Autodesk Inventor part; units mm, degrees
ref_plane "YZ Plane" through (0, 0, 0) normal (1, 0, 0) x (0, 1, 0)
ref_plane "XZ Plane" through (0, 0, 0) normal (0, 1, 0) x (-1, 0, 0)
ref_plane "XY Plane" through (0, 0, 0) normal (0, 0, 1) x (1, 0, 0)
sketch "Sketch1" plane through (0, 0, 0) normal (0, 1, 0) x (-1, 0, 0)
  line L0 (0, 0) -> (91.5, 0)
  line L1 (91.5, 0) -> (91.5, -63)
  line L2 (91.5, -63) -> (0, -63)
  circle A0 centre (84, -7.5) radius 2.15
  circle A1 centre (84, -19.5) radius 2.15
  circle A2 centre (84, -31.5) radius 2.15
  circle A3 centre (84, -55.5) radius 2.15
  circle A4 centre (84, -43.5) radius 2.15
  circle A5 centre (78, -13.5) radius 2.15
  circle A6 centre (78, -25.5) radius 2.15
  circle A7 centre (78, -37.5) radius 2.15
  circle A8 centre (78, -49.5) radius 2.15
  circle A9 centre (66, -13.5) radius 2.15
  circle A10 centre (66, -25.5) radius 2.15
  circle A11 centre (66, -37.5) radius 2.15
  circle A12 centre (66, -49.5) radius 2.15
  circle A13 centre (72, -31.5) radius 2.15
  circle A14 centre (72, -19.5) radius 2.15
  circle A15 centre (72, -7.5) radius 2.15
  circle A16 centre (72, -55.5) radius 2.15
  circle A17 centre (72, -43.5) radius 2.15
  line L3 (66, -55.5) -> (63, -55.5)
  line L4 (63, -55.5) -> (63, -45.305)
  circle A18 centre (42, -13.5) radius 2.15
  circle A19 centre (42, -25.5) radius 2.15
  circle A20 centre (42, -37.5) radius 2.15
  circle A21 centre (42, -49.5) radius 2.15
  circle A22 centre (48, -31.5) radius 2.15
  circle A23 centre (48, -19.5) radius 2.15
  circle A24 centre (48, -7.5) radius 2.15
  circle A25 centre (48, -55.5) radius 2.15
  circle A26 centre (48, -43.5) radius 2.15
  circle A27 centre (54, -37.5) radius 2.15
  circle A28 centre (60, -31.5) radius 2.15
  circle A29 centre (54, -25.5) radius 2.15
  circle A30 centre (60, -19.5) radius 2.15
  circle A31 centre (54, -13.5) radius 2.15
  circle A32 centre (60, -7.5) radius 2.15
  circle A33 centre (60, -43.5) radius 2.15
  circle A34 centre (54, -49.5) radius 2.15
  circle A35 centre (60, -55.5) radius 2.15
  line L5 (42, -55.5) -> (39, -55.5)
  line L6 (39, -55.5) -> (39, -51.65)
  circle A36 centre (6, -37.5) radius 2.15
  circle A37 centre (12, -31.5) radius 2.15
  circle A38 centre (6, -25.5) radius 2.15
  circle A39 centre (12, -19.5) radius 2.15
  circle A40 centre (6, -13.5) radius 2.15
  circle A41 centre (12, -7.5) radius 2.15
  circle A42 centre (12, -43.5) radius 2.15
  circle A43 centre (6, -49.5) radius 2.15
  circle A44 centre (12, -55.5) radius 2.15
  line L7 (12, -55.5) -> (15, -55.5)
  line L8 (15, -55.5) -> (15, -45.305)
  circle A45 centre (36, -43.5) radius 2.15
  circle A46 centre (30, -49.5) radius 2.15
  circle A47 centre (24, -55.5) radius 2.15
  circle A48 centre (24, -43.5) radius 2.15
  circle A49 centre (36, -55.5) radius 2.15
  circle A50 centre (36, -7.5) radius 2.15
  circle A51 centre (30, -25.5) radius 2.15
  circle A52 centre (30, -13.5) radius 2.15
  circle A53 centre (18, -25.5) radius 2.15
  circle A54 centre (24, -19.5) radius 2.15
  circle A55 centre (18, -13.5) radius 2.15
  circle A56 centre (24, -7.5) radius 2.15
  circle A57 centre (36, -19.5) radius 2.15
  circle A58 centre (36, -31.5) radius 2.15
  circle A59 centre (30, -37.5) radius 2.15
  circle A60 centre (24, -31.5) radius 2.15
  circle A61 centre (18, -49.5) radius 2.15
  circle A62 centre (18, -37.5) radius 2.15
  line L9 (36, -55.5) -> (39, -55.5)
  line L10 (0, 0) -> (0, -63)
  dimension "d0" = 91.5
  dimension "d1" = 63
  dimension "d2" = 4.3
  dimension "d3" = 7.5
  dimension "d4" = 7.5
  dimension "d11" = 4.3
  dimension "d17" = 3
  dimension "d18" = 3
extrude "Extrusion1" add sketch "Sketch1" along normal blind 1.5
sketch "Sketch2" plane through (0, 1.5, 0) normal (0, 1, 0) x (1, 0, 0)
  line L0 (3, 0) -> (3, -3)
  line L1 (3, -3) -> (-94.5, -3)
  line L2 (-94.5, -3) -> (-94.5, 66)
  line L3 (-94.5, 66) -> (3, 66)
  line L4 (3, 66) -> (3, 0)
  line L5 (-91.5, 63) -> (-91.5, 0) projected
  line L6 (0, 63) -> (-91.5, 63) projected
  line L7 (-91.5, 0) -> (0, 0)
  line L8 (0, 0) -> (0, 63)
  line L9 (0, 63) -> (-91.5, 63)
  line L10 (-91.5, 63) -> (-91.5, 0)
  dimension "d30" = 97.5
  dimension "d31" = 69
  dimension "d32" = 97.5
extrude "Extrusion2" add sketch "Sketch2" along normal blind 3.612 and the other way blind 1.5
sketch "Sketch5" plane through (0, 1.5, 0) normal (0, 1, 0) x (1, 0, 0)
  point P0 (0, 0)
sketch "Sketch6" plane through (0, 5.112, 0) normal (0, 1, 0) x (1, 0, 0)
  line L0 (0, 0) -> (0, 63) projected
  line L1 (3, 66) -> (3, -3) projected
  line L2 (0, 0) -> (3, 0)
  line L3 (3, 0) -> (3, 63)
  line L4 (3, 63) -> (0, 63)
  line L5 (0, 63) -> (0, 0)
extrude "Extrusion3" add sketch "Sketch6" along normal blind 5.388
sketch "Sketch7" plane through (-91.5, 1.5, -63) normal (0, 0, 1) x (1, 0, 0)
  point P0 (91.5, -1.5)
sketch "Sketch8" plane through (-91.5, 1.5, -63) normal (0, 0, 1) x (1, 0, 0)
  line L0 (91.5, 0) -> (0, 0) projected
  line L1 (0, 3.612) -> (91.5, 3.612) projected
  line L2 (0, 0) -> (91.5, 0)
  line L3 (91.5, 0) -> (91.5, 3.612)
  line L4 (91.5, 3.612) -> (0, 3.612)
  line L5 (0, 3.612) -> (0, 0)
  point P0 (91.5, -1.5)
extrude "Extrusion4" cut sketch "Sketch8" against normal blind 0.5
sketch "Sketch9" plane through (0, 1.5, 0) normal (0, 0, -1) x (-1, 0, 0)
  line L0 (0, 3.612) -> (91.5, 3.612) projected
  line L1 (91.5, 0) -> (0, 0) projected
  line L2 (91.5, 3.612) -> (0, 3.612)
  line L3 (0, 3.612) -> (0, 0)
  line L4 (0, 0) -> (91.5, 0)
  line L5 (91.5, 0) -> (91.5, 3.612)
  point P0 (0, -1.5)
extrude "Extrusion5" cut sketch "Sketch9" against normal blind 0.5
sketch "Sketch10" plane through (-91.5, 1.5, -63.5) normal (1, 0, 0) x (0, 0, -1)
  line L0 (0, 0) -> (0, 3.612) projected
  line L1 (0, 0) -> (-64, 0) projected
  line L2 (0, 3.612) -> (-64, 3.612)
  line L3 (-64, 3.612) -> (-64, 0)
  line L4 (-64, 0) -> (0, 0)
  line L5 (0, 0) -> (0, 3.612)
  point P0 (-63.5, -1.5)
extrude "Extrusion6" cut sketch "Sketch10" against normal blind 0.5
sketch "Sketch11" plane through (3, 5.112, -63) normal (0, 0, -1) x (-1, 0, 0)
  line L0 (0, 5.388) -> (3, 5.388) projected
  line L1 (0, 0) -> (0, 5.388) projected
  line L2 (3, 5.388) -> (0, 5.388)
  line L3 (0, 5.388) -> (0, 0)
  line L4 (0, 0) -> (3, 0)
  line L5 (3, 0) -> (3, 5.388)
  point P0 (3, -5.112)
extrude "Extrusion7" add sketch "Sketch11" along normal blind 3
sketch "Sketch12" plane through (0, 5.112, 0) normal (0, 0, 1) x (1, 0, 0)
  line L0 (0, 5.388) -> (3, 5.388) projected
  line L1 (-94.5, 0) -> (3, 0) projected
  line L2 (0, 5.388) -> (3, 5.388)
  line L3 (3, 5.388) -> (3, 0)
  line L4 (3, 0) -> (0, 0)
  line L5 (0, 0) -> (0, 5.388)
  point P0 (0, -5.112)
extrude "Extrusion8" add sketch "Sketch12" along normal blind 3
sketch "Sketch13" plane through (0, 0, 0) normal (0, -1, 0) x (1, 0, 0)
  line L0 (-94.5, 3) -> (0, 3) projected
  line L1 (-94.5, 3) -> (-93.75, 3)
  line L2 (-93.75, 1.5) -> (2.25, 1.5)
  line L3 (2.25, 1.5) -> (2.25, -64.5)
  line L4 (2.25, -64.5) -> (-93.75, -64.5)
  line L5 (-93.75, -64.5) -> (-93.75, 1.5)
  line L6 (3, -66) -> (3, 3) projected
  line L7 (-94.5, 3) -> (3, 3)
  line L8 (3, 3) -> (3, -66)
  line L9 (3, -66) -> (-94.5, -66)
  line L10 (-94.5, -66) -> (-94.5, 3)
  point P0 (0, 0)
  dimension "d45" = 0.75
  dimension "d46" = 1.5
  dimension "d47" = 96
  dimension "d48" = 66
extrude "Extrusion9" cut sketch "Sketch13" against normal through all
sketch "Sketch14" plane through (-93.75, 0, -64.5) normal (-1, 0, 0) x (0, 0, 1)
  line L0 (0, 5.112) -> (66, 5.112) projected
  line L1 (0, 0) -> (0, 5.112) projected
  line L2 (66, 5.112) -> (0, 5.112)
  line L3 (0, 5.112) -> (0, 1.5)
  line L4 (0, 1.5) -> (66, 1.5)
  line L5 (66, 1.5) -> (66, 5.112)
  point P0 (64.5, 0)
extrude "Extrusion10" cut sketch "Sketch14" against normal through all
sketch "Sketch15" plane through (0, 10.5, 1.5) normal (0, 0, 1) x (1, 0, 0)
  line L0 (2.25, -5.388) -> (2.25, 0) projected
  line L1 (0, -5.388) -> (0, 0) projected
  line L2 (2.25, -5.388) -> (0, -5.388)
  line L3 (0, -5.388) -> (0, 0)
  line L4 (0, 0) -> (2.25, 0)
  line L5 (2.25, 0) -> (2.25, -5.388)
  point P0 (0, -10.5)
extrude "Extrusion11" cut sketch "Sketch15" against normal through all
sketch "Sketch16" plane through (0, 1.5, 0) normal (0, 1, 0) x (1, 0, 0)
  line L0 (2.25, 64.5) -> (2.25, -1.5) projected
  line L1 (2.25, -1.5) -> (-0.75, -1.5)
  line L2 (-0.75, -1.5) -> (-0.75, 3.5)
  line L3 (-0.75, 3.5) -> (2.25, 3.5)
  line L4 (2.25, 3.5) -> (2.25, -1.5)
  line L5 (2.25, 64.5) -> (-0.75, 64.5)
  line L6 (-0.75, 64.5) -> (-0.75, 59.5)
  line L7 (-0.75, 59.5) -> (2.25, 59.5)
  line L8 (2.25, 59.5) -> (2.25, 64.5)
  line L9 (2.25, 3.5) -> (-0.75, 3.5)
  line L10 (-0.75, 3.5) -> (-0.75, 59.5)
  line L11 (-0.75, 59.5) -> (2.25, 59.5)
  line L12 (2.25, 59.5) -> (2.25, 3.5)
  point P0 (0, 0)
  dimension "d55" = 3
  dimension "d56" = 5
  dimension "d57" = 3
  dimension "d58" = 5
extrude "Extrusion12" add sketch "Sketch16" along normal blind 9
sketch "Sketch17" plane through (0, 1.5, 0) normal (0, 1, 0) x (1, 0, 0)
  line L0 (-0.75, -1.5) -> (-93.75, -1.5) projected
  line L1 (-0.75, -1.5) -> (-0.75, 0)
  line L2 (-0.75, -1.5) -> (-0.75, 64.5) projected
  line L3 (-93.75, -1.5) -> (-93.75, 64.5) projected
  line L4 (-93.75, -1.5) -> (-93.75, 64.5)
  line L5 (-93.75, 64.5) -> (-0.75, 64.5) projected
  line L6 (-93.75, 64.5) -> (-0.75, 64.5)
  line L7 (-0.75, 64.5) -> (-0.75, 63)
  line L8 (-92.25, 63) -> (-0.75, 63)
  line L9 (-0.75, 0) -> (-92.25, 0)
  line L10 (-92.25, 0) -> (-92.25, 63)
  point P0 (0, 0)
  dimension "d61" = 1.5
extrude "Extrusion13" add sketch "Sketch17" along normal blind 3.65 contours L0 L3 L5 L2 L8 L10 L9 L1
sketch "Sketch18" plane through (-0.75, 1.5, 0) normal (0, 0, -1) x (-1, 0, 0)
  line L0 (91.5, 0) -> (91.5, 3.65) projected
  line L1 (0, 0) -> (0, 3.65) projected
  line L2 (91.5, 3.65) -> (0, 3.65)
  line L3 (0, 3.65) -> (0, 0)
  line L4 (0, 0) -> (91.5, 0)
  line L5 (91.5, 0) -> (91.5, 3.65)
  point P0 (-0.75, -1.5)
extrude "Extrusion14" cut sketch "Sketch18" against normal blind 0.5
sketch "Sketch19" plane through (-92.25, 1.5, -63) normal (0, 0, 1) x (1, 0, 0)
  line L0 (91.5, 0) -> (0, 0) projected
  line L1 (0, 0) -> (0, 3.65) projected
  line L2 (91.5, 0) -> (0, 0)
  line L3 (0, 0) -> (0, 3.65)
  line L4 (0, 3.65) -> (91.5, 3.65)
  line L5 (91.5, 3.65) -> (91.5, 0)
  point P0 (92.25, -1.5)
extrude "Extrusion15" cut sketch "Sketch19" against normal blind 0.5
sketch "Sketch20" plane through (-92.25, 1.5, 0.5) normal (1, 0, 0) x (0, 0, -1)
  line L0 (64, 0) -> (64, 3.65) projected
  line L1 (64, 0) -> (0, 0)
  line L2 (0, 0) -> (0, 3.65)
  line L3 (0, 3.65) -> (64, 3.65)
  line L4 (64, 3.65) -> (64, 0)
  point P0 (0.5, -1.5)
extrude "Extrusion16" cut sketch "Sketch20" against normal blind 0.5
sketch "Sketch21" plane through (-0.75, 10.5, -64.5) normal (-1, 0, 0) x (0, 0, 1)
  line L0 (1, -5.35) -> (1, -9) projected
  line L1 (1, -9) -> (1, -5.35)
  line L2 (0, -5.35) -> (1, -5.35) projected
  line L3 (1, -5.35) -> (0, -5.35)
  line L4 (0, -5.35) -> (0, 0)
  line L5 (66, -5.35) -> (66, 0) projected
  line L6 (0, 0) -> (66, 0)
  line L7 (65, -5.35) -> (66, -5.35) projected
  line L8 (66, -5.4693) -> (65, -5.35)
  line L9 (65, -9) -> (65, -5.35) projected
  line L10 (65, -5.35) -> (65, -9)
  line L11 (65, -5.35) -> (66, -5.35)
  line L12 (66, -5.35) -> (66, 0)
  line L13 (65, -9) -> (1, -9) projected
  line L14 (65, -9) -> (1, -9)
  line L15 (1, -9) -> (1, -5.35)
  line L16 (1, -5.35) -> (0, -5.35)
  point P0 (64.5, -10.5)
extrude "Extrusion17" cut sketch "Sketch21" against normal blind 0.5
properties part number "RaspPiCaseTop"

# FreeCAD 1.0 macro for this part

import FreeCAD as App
import Part
import Sketcher
from FreeCAD import Vector
Q = App.Units.Quantity


def add_polygon(sketch, points):
    """Adds a closed chain of lines whose ends are joined by coincident constraints."""
    first, n = sketch.GeometryCount, len(points)
    for a, b in zip(points, points[1:] + points[:1]):
        sketch.addGeometry(Part.LineSegment(App.Vector(*a, 0), App.Vector(*b, 0)), False)
    for i in range(n):
        sketch.addConstraint(Sketcher.Constraint("Coincident", first + i, 2, first + (i + 1) % n, 1))

doc = App.newDocument("Part")
body = doc.addObject("PartDesign::Body", "Body")
body.AllowCompound = True

sketch1 = body.newObject("Sketcher::SketchObject", "Sketch")
sketch1.AttachmentSupport = (doc.getObject("XZ_Plane"), [""])
sketch1.MapMode = "FlatFace"
add_polygon(sketch1, [(-91.5, 0), (0, 0), (0, -63), (-91.5, -63)])
sketch1.addGeometry(Part.Circle(Vector(-12, -55.5, 0), Vector(0, 0, 1), 2.1), False)
sketch1.addGeometry(Part.Circle(Vector(-6, -49.5, 0), Vector(0, 0, 1), 2.1), False)
sketch1.addGeometry(Part.Circle(Vector(-18, -49.5, 0), Vector(0, 0, 1), 2.1), False)
sketch1.addGeometry(Part.Circle(Vector(-24, -55.5, 0), Vector(0, 0, 1), 2.1), False)
sketch1.addGeometry(Part.Circle(Vector(-36, -55.5, 0), Vector(0, 0, 1), 2.1), False)
sketch1.addGeometry(Part.Circle(Vector(-30, -49.5, 0), Vector(0, 0, 1), 2.1), False)
sketch1.addGeometry(Part.Circle(Vector(-42, -49.5, 0), Vector(0, 0, 1), 2.1), False)
sketch1.addGeometry(Part.Circle(Vector(-12, -43.5, 0), Vector(0, 0, 1), 2.1), False)
sketch1.addGeometry(Part.Circle(Vector(-6, -37.5, 0), Vector(0, 0, 1), 2.1), False)
sketch1.addGeometry(Part.Circle(Vector(-18, -37.5, 0), Vector(0, 0, 1), 2.1), False)
sketch1.addGeometry(Part.Circle(Vector(-24, -43.5, 0), Vector(0, 0, 1), 2.1), False)
sketch1.addGeometry(Part.Circle(Vector(-36, -43.5, 0), Vector(0, 0, 1), 2.1), False)
sketch1.addGeometry(Part.Circle(Vector(-30, -37.5, 0), Vector(0, 0, 1), 2.1), False)
sketch1.addGeometry(Part.Circle(Vector(-42, -37.5, 0), Vector(0, 0, 1), 2.1), False)
sketch1.addGeometry(Part.Circle(Vector(-48, -55.5, 0), Vector(0, 0, 1), 2.1), False)
sketch1.addGeometry(Part.Circle(Vector(-60, -55.5, 0), Vector(0, 0, 1), 2.1), False)
sketch1.addGeometry(Part.Circle(Vector(-54, -49.5, 0), Vector(0, 0, 1), 2.1), False)
sketch1.addGeometry(Part.Circle(Vector(-66, -49.5, 0), Vector(0, 0, 1), 2.1), False)
sketch1.addGeometry(Part.Circle(Vector(-72, -55.5, 0), Vector(0, 0, 1), 2.1), False)
sketch1.addGeometry(Part.Circle(Vector(-84, -55.5, 0), Vector(0, 0, 1), 2.1), False)
sketch1.addGeometry(Part.Circle(Vector(-78, -49.5, 0), Vector(0, 0, 1), 2.1), False)
sketch1.addGeometry(Part.Circle(Vector(-48, -43.5, 0), Vector(0, 0, 1), 2.1), False)
sketch1.addGeometry(Part.Circle(Vector(-60, -43.5, 0), Vector(0, 0, 1), 2.1), False)
sketch1.addGeometry(Part.Circle(Vector(-54, -37.5, 0), Vector(0, 0, 1), 2.1), False)
sketch1.addGeometry(Part.Circle(Vector(-66, -37.5, 0), Vector(0, 0, 1), 2.1), False)
sketch1.addGeometry(Part.Circle(Vector(-72, -43.5, 0), Vector(0, 0, 1), 2.1), False)
sketch1.addGeometry(Part.Circle(Vector(-84, -43.5, 0), Vector(0, 0, 1), 2.1), False)
sketch1.addGeometry(Part.Circle(Vector(-78, -37.5, 0), Vector(0, 0, 1), 2.1), False)
sketch1.addGeometry(Part.Circle(Vector(-6, -25.5, 0), Vector(0, 0, 1), 2.1), False)
sketch1.addGeometry(Part.Circle(Vector(-12, -31.5, 0), Vector(0, 0, 1), 2.1), False)
sketch1.addGeometry(Part.Circle(Vector(-18, -25.5, 0), Vector(0, 0, 1), 2.1), False)
sketch1.addGeometry(Part.Circle(Vector(-12, -19.5, 0), Vector(0, 0, 1), 2.1), False)
sketch1.addGeometry(Part.Circle(Vector(-24, -31.5, 0), Vector(0, 0, 1), 2.1), False)
sketch1.addGeometry(Part.Circle(Vector(-30, -25.5, 0), Vector(0, 0, 1), 2.1), False)
sketch1.addGeometry(Part.Circle(Vector(-36, -31.5, 0), Vector(0, 0, 1), 2.1), False)
sketch1.addGeometry(Part.Circle(Vector(-42, -25.5, 0), Vector(0, 0, 1), 2.1), False)
sketch1.addGeometry(Part.Circle(Vector(-24, -19.5, 0), Vector(0, 0, 1), 2.1), False)
sketch1.addGeometry(Part.Circle(Vector(-36, -19.5, 0), Vector(0, 0, 1), 2.1), False)
sketch1.addGeometry(Part.Circle(Vector(-6, -13.5, 0), Vector(0, 0, 1), 2.1), False)
sketch1.addGeometry(Part.Circle(Vector(-18, -13.5, 0), Vector(0, 0, 1), 2.1), False)
sketch1.addGeometry(Part.Circle(Vector(-12, -7.5, 0), Vector(0, 0, 1), 2.1), False)
sketch1.addGeometry(Part.Circle(Vector(-30, -13.5, 0), Vector(0, 0, 1), 2.1), False)
sketch1.addGeometry(Part.Circle(Vector(-42, -13.5, 0), Vector(0, 0, 1), 2.1), False)
sketch1.addGeometry(Part.Circle(Vector(-24, -7.5, 0), Vector(0, 0, 1), 2.1), False)
sketch1.addGeometry(Part.Circle(Vector(-36, -7.5, 0), Vector(0, 0, 1), 2.1), False)
sketch1.addGeometry(Part.Circle(Vector(-48, -31.5, 0), Vector(0, 0, 1), 2.1), False)
sketch1.addGeometry(Part.Circle(Vector(-54, -25.5, 0), Vector(0, 0, 1), 2.1), False)
sketch1.addGeometry(Part.Circle(Vector(-60, -31.5, 0), Vector(0, 0, 1), 2.1), False)
sketch1.addGeometry(Part.Circle(Vector(-66, -25.5, 0), Vector(0, 0, 1), 2.1), False)
sketch1.addGeometry(Part.Circle(Vector(-48, -19.5, 0), Vector(0, 0, 1), 2.1), False)
sketch1.addGeometry(Part.Circle(Vector(-60, -19.5, 0), Vector(0, 0, 1), 2.1), False)
sketch1.addGeometry(Part.Circle(Vector(-72, -31.5, 0), Vector(0, 0, 1), 2.1), False)
sketch1.addGeometry(Part.Circle(Vector(-78, -25.5, 0), Vector(0, 0, 1), 2.1), False)
sketch1.addGeometry(Part.Circle(Vector(-84, -31.5, 0), Vector(0, 0, 1), 2.1), False)
sketch1.addGeometry(Part.Circle(Vector(-72, -19.5, 0), Vector(0, 0, 1), 2.1), False)
sketch1.addGeometry(Part.Circle(Vector(-84, -19.5, 0), Vector(0, 0, 1), 2.1), False)
sketch1.addGeometry(Part.Circle(Vector(-54, -13.5, 0), Vector(0, 0, 1), 2.1), False)
sketch1.addGeometry(Part.Circle(Vector(-66, -13.5, 0), Vector(0, 0, 1), 2.1), False)
sketch1.addGeometry(Part.Circle(Vector(-48, -7.5, 0), Vector(0, 0, 1), 2.1), False)
sketch1.addGeometry(Part.Circle(Vector(-60, -7.5, 0), Vector(0, 0, 1), 2.1), False)
sketch1.addGeometry(Part.Circle(Vector(-78, -13.5, 0), Vector(0, 0, 1), 2.1), False)
sketch1.addGeometry(Part.Circle(Vector(-72, -7.5, 0), Vector(0, 0, 1), 2.1), False)
sketch1.addGeometry(Part.Circle(Vector(-84, -7.5, 0), Vector(0, 0, 1), 2.1), False)
sketch1.addConstraint([
    Sketcher.Constraint("Horizontal", 0),
    Sketcher.Constraint("Vertical", 1),
    Sketcher.Constraint("Horizontal", 2),
    Sketcher.Constraint("Vertical", 3),
    Sketcher.Constraint("Coincident", 0, 2, -1, 1),
    Sketcher.Constraint("Equal", 4, 5),
    Sketcher.Constraint("Equal", 5, 6),
    Sketcher.Constraint("Equal", 6, 7),
    Sketcher.Constraint("Equal", 7, 8),
    Sketcher.Constraint("Equal", 8, 9),
    Sketcher.Constraint("Equal", 9, 10),
    Sketcher.Constraint("Equal", 10, 11),
    Sketcher.Constraint("Equal", 11, 12),
    Sketcher.Constraint("Equal", 12, 13),
    Sketcher.Constraint("Equal", 13, 14),
    Sketcher.Constraint("Equal", 14, 15),
    Sketcher.Constraint("Equal", 15, 16),
    Sketcher.Constraint("Equal", 16, 17),
    Sketcher.Constraint("Equal", 17, 18),
    Sketcher.Constraint("Equal", 18, 19),
    Sketcher.Constraint("Equal", 19, 20),
    Sketcher.Constraint("Equal", 20, 21),
    Sketcher.Constraint("Equal", 21, 22),
    Sketcher.Constraint("Equal", 22, 23),
    Sketcher.Constraint("Equal", 23, 24),
    Sketcher.Constraint("Equal", 24, 25),
    Sketcher.Constraint("Equal", 25, 26),
    Sketcher.Constraint("Equal", 26, 27),
    Sketcher.Constraint("Equal", 27, 28),
    Sketcher.Constraint("Equal", 28, 29),
    Sketcher.Constraint("Equal", 29, 30),
    Sketcher.Constraint("Equal", 30, 31),
    Sketcher.Constraint("Equal", 31, 32),
    Sketcher.Constraint("Equal", 32, 33),
    Sketcher.Constraint("Equal", 33, 34),
    Sketcher.Constraint("Equal", 34, 35),
    Sketcher.Constraint("Equal", 35, 36),
    Sketcher.Constraint("Equal", 36, 37),
    Sketcher.Constraint("Equal", 37, 38),
    Sketcher.Constraint("Equal", 38, 39),
    Sketcher.Constraint("Equal", 39, 40),
    Sketcher.Constraint("Equal", 40, 41),
    Sketcher.Constraint("Equal", 41, 42),
    Sketcher.Constraint("Equal", 42, 43),
    Sketcher.Constraint("Equal", 43, 44),
    Sketcher.Constraint("Equal", 44, 45),
    Sketcher.Constraint("Equal", 45, 46),
    Sketcher.Constraint("Equal", 46, 47),
    Sketcher.Constraint("Equal", 47, 48),
    Sketcher.Constraint("Equal", 48, 49),
    Sketcher.Constraint("Equal", 49, 50),
    Sketcher.Constraint("Equal", 50, 51),
    Sketcher.Constraint("Equal", 51, 52),
    Sketcher.Constraint("Equal", 52, 53),
    Sketcher.Constraint("Equal", 53, 54),
    Sketcher.Constraint("Equal", 54, 55),
    Sketcher.Constraint("Equal", 55, 56),
    Sketcher.Constraint("Equal", 56, 57),
    Sketcher.Constraint("Equal", 57, 58),
    Sketcher.Constraint("Equal", 58, 59),
    Sketcher.Constraint("Equal", 59, 60),
    Sketcher.Constraint("Equal", 60, 61),
    Sketcher.Constraint("Equal", 61, 62),
    Sketcher.Constraint("Equal", 62, 63),
    Sketcher.Constraint("Equal", 63, 64),
    Sketcher.Constraint("Equal", 64, 65),
    Sketcher.Constraint("Equal", 65, 66),
    Sketcher.Constraint("Horizontal", 5, 3, 6, 3),
    Sketcher.Constraint("Horizontal", 4, 3, 7, 3),
    Sketcher.Constraint("Horizontal", 7, 3, 8, 3),
    Sketcher.Constraint("Horizontal", 6, 3, 9, 3),
    Sketcher.Constraint("Horizontal", 9, 3, 10, 3),
    Sketcher.Constraint("Horizontal", 12, 3, 13, 3),
    Sketcher.Constraint("Horizontal", 11, 3, 14, 3),
    Sketcher.Constraint("Horizontal", 14, 3, 15, 3),
    Sketcher.Constraint("Horizontal", 13, 3, 16, 3),
    Sketcher.Constraint("Horizontal", 16, 3, 17, 3),
    Sketcher.Constraint("Horizontal", 8, 3, 18, 3),
    Sketcher.Constraint("Horizontal", 18, 3, 19, 3),
    Sketcher.Constraint("Horizontal", 10, 3, 20, 3),
    Sketcher.Constraint("Horizontal", 20, 3, 21, 3),
    Sketcher.Constraint("Horizontal", 19, 3, 22, 3),
    Sketcher.Constraint("Horizontal", 22, 3, 23, 3),
    Sketcher.Constraint("Horizontal", 21, 3, 24, 3),
    Sketcher.Constraint("Horizontal", 15, 3, 25, 3),
    Sketcher.Constraint("Horizontal", 25, 3, 26, 3),
    Sketcher.Constraint("Horizontal", 17, 3, 27, 3),
    Sketcher.Constraint("Horizontal", 27, 3, 28, 3),
    Sketcher.Constraint("Horizontal", 26, 3, 29, 3),
    Sketcher.Constraint("Horizontal", 29, 3, 30, 3),
    Sketcher.Constraint("Horizontal", 28, 3, 31, 3),
    Sketcher.Constraint("Horizontal", 32, 3, 34, 3),
    Sketcher.Constraint("Horizontal", 33, 3, 36, 3),
    Sketcher.Constraint("Horizontal", 34, 3, 37, 3),
    Sketcher.Constraint("Horizontal", 36, 3, 38, 3),
    Sketcher.Constraint("Horizontal", 37, 3, 39, 3),
    Sketcher.Constraint("Horizontal", 35, 3, 40, 3),
    Sketcher.Constraint("Horizontal", 40, 3, 41, 3),
    Sketcher.Constraint("Horizontal", 42, 3, 43, 3),
    Sketcher.Constraint("Horizontal", 43, 3, 45, 3),
    Sketcher.Constraint("Horizontal", 45, 3, 46, 3),
    Sketcher.Constraint("Horizontal", 44, 3, 47, 3),
    Sketcher.Constraint("Horizontal", 47, 3, 48, 3),
    Sketcher.Constraint("Horizontal", 38, 3, 49, 3),
    Sketcher.Constraint("Horizontal", 39, 3, 50, 3),
    Sketcher.Constraint("Horizontal", 49, 3, 51, 3),
    Sketcher.Constraint("Horizontal", 50, 3, 52, 3),
    Sketcher.Constraint("Horizontal", 41, 3, 53, 3),
    Sketcher.Constraint("Horizontal", 53, 3, 54, 3),
    Sketcher.Constraint("Horizontal", 51, 3, 55, 3),
    Sketcher.Constraint("Horizontal", 52, 3, 56, 3),
    Sketcher.Constraint("Horizontal", 55, 3, 57, 3),
    Sketcher.Constraint("Horizontal", 54, 3, 58, 3),
    Sketcher.Constraint("Horizontal", 58, 3, 59, 3),
    Sketcher.Constraint("Horizontal", 46, 3, 60, 3),
    Sketcher.Constraint("Horizontal", 60, 3, 61, 3),
    Sketcher.Constraint("Horizontal", 48, 3, 62, 3),
    Sketcher.Constraint("Horizontal", 62, 3, 63, 3),
    Sketcher.Constraint("Horizontal", 61, 3, 64, 3),
    Sketcher.Constraint("Horizontal", 63, 3, 65, 3),
    Sketcher.Constraint("Horizontal", 65, 3, 66, 3),
    Sketcher.Constraint("Vertical", 4, 3, 11, 3),
    Sketcher.Constraint("Vertical", 5, 3, 12, 3),
    Sketcher.Constraint("Vertical", 6, 3, 13, 3),
    Sketcher.Constraint("Vertical", 7, 3, 14, 3),
    Sketcher.Constraint("Vertical", 8, 3, 15, 3),
    Sketcher.Constraint("Vertical", 9, 3, 16, 3),
    Sketcher.Constraint("Vertical", 10, 3, 17, 3),
    Sketcher.Constraint("Vertical", 18, 3, 25, 3),
    Sketcher.Constraint("Vertical", 19, 3, 26, 3),
    Sketcher.Constraint("Vertical", 20, 3, 27, 3),
    Sketcher.Constraint("Vertical", 21, 3, 28, 3),
    Sketcher.Constraint("Vertical", 22, 3, 29, 3),
    Sketcher.Constraint("Vertical", 23, 3, 30, 3),
    Sketcher.Constraint("Vertical", 24, 3, 31, 3),
    Sketcher.Constraint("Vertical", 12, 3, 32, 3),
    Sketcher.Constraint("Vertical", 11, 3, 33, 3),
    Sketcher.Constraint("Vertical", 13, 3, 34, 3),
    Sketcher.Constraint("Vertical", 33, 3, 35, 3),
    Sketcher.Constraint("Vertical", 14, 3, 36, 3),
    Sketcher.Constraint("Vertical", 16, 3, 37, 3),
    Sketcher.Constraint("Vertical", 15, 3, 38, 3),
    Sketcher.Constraint("Vertical", 17, 3, 39, 3),
    Sketcher.Constraint("Vertical", 36, 3, 40, 3),
    Sketcher.Constraint("Vertical", 38, 3, 41, 3),
    Sketcher.Constraint("Vertical", 32, 3, 42, 3),
    Sketcher.Constraint("Vertical", 34, 3, 43, 3),
    Sketcher.Constraint("Vertical", 35, 3, 44, 3),
    Sketcher.Constraint("Vertical", 37, 3, 45, 3),
    Sketcher.Constraint("Vertical", 39, 3, 46, 3),
    Sketcher.Constraint("Vertical", 40, 3, 47, 3),
    Sketcher.Constraint("Vertical", 41, 3, 48, 3),
    Sketcher.Constraint("Vertical", 25, 3, 49, 3),
    Sketcher.Constraint("Vertical", 27, 3, 50, 3),
    Sketcher.Constraint("Vertical", 26, 3, 51, 3),
    Sketcher.Constraint("Vertical", 28, 3, 52, 3),
    Sketcher.Constraint("Vertical", 49, 3, 53, 3),
    Sketcher.Constraint("Vertical", 51, 3, 54, 3),
    Sketcher.Constraint("Vertical", 29, 3, 55, 3),
    Sketcher.Constraint("Vertical", 31, 3, 56, 3),
    Sketcher.Constraint("Vertical", 30, 3, 57, 3),
    Sketcher.Constraint("Vertical", 55, 3, 58, 3),
    Sketcher.Constraint("Vertical", 57, 3, 59, 3),
    Sketcher.Constraint("Vertical", 50, 3, 60, 3),
    Sketcher.Constraint("Vertical", 52, 3, 61, 3),
    Sketcher.Constraint("Vertical", 53, 3, 62, 3),
    Sketcher.Constraint("Vertical", 54, 3, 63, 3),
    Sketcher.Constraint("Vertical", 56, 3, 64, 3),
    Sketcher.Constraint("Vertical", 58, 3, 65, 3),
    Sketcher.Constraint("Vertical", 59, 3, 66, 3),
    Sketcher.Constraint("Diameter", 4, Q("4.3 mm")),
    Sketcher.Constraint("DistanceY", 1, 2, 1, 1, Q("63 mm")),
    Sketcher.Constraint("DistanceX", 0, 1, 0, 2, Q("91.5 mm")),
    Sketcher.Constraint("DistanceY", 44, 3, -1, 1, Q("7.5 mm")),
    Sketcher.Constraint("DistanceX", 4, 3, -1, 1, Q("12 mm")),
    Sketcher.Constraint("DistanceX", 5, 3, -1, 1, Q("6 mm")),
    Sketcher.Constraint("DistanceX", 6, 3, -1, 1, Q("18 mm")),
    Sketcher.Constraint("DistanceX", 7, 3, -1, 1, Q("24 mm")),
    Sketcher.Constraint("DistanceX", 8, 3, -1, 1, Q("36 mm")),
    Sketcher.Constraint("DistanceX", 9, 3, -1, 1, Q("30 mm")),
    Sketcher.Constraint("DistanceX", 10, 3, -1, 1, Q("42 mm")),
    Sketcher.Constraint("DistanceX", 18, 3, -1, 1, Q("48 mm")),
    Sketcher.Constraint("DistanceX", 19, 3, -1, 1, Q("60 mm")),
    Sketcher.Constraint("DistanceX", 20, 3, -1, 1, Q("54 mm")),
    Sketcher.Constraint("DistanceX", 21, 3, -1, 1, Q("66 mm")),
    Sketcher.Constraint("DistanceX", 22, 3, -1, 1, Q("72 mm")),
    Sketcher.Constraint("DistanceX", 23, 3, -1, 1, Q("84 mm")),
    Sketcher.Constraint("DistanceX", 24, 3, -1, 1, Q("78 mm")),
    Sketcher.Constraint("DistanceY", 4, 3, -1, 1, Q("55.5 mm")),
    Sketcher.Constraint("DistanceY", 5, 3, -1, 1, Q("49.5 mm")),
    Sketcher.Constraint("DistanceY", 11, 3, -1, 1, Q("43.5 mm")),
    Sketcher.Constraint("DistanceY", 12, 3, -1, 1, Q("37.5 mm")),
    Sketcher.Constraint("DistanceY", 32, 3, -1, 1, Q("25.5 mm")),
    Sketcher.Constraint("DistanceY", 33, 3, -1, 1, Q("31.5 mm")),
    Sketcher.Constraint("DistanceY", 35, 3, -1, 1, Q("19.5 mm")),
    Sketcher.Constraint("DistanceY", 42, 3, -1, 1, Q("13.5 mm")),
])
pad1 = body.newObject("PartDesign::Pad", "Pad")
pad1.Profile = sketch1
pad1.Length = 1.5
pad1.Reversed = True

sketch2 = body.newObject("Sketcher::SketchObject", "Sketch001")
sketch2.AttachmentSupport = (doc.getObject("XZ_Plane"), [""])
sketch2.MapMode = "FlatFace"
sketch2.AttachmentOffset = App.Placement(Vector(0, 0, -1.5), App.Rotation())
add_polygon(sketch2, [(3, 3), (3, -66), (-94, -66), (-94, 3)])
add_polygon(sketch2, [(-92, 0), (-92, -63), (0, -63), (0, 0)])
sketch2.addConstraint([
    Sketcher.Constraint("Vertical", 0),
    Sketcher.Constraint("Horizontal", 1),
    Sketcher.Constraint("Vertical", 2),
    Sketcher.Constraint("Horizontal", 3),
    Sketcher.Constraint("Vertical", 4),
    Sketcher.Constraint("Horizontal", 5),
    Sketcher.Constraint("Vertical", 6),
    Sketcher.Constraint("Horizontal", 7),
    Sketcher.Constraint("Coincident", 6, 2, -1, 1),
    Sketcher.Constraint("DistanceY", 0, 2, 0, 1, Q("69 mm")),
    Sketcher.Constraint("DistanceX", 1, 2, 1, 1, Q("97.5 mm")),
    Sketcher.Constraint("DistanceY", 4, 2, 4, 1, Q("63 mm")),
    Sketcher.Constraint("DistanceX", 5, 1, 5, 2, Q("91.5 mm")),
    Sketcher.Constraint("DistanceX", -1, 1, 0, 2, Q("3 mm")),
    Sketcher.Constraint("DistanceY", 0, 2, -1, 1, Q("66 mm")),
])
pad2 = body.newObject("PartDesign::Pad", "Pad001")
pad2.Profile = sketch2
pad2.Type = "TwoLengths"
pad2.Length = 3.612
pad2.Length2 = 1.5
pad2.Reversed = True

sketch3 = body.newObject("Sketcher::SketchObject", "Sketch002")
sketch3.AttachmentSupport = (doc.getObject("XZ_Plane"), [""])
sketch3.MapMode = "FlatFace"
sketch3.AttachmentOffset = App.Placement(Vector(0, 0, -5.112), App.Rotation())
add_polygon(sketch3, [(0, -63), (0, 0), (3, 0), (3, -63)])
sketch3.addConstraint([
    Sketcher.Constraint("Vertical", 0),
    Sketcher.Constraint("Horizontal", 1),
    Sketcher.Constraint("Vertical", 2),
    Sketcher.Constraint("Horizontal", 3),
    Sketcher.Constraint("Coincident", 0, 2, -1, 1),
    Sketcher.Constraint("DistanceX", 1, 1, 1, 2, Q("3 mm")),
    Sketcher.Constraint("DistanceY", 0, 1, 0, 2, Q("63 mm")),
])
pad3 = body.newObject("PartDesign::Pad", "Pad002")
pad3.Profile = sketch3
pad3.Length = 5.388
pad3.Reversed = True

sketch4 = body.newObject("Sketcher::SketchObject", "Sketch003")
sketch4.AttachmentSupport = (doc.getObject("XY_Plane"), [""])
sketch4.MapMode = "FlatFace"
sketch4.AttachmentOffset = App.Placement(Vector(0, 0, -63), App.Rotation())
add_polygon(sketch4, [(-91.5, 1.5), (0, 1.5), (0, 5.1), (-91.5, 5.1)])
sketch4.addConstraint([
    Sketcher.Constraint("Horizontal", 0),
    Sketcher.Constraint("Vertical", 1),
    Sketcher.Constraint("Horizontal", 2),
    Sketcher.Constraint("Vertical", 3),
    Sketcher.Constraint("PointOnObject", 0, 2, -2),
    Sketcher.Constraint("DistanceX", 0, 1, 0, 2, Q("91.5 mm")),
    Sketcher.Constraint("DistanceY", -1, 1, 0, 2, Q("1.5 mm")),
    Sketcher.Constraint("DistanceY", 1, 1, 1, 2, Q("3.612 mm")),
])
pocket1 = body.newObject("PartDesign::Pocket", "Pocket")
pocket1.Profile = sketch4
pocket1.Length = 0.5

sketch5 = body.newObject("Sketcher::SketchObject", "Sketch004")
sketch5.AttachmentSupport = (doc.getObject("XY_Plane"), [""])
sketch5.MapMode = "FlatFace"
add_polygon(sketch5, [(-91.5, 5.1), (0, 5.1), (0, 1.5), (-91.5, 1.5)])
sketch5.addConstraint([
    Sketcher.Constraint("Horizontal", 0),
    Sketcher.Constraint("Vertical", 1),
    Sketcher.Constraint("Horizontal", 2),
    Sketcher.Constraint("Vertical", 3),
    Sketcher.Constraint("PointOnObject", 0, 2, -2),
    Sketcher.Constraint("DistanceX", 0, 1, 0, 2, Q("91.5 mm")),
    Sketcher.Constraint("DistanceY", -1, 1, 1, 2, Q("1.5 mm")),
    Sketcher.Constraint("DistanceY", 1, 2, 1, 1, Q("3.612 mm")),
])
pocket2 = body.newObject("PartDesign::Pocket", "Pocket001")
pocket2.Profile = sketch5
pocket2.Length = 0.5
pocket2.Reversed = True

sketch6 = body.newObject("Sketcher::SketchObject", "Sketch005")
sketch6.AttachmentSupport = (doc.getObject("YZ_Plane"), [""])
sketch6.MapMode = "FlatFace"
sketch6.AttachmentOffset = App.Placement(Vector(0, 0, -91.5), App.Rotation())
add_polygon(sketch6, [(1.5, 0.5), (1.5, -63.5), (5.1, -63.5), (5.1, 0.5)])
sketch6.addConstraint([
    Sketcher.Constraint("Vertical", 0),
    Sketcher.Constraint("Horizontal", 1),
    Sketcher.Constraint("Vertical", 2),
    Sketcher.Constraint("Horizontal", 3),
    Sketcher.Constraint("DistanceY", 0, 2, 0, 1, Q("64 mm")),
    Sketcher.Constraint("DistanceX", -1, 1, 0, 2, Q("1.5 mm")),
    Sketcher.Constraint("DistanceY", 0, 2, -1, 1, Q("63.5 mm")),
    Sketcher.Constraint("DistanceX", 1, 1, 1, 2, Q("3.612 mm")),
])
pocket3 = body.newObject("PartDesign::Pocket", "Pocket002")
pocket3.Profile = sketch6
pocket3.Length = 0.5

sketch7 = body.newObject("Sketcher::SketchObject", "Sketch006")
sketch7.AttachmentSupport = (doc.getObject("XY_Plane"), [""])
sketch7.MapMode = "FlatFace"
sketch7.AttachmentOffset = App.Placement(Vector(0, 0, -63), App.Rotation())
add_polygon(sketch7, [(0, 10.5), (3, 10.5), (3, 5.1), (0, 5.1)])
sketch7.addConstraint([
    Sketcher.Constraint("Horizontal", 0),
    Sketcher.Constraint("Vertical", 1),
    Sketcher.Constraint("Horizontal", 2),
    Sketcher.Constraint("Vertical", 3),
    Sketcher.Constraint("PointOnObject", 2, 2, -2),
    Sketcher.Constraint("DistanceX", 0, 1, 0, 2, Q("3 mm")),
    Sketcher.Constraint("DistanceY", -1, 1, 0, 2, Q("10.5 mm")),
    Sketcher.Constraint("DistanceY", 1, 2, 1, 1, Q("5.388 mm")),
])
pad4 = body.newObject("PartDesign::Pad", "Pad003")
pad4.Profile = sketch7
pad4.Length = 3
pad4.Reversed = True

sketch8 = body.newObject("Sketcher::SketchObject", "Sketch007")
sketch8.AttachmentSupport = (doc.getObject("XY_Plane"), [""])
sketch8.MapMode = "FlatFace"
add_polygon(sketch8, [(3, 10.5), (0, 10.5), (0, 5.1), (3, 5.1)])
sketch8.addConstraint([
    Sketcher.Constraint("Horizontal", 0),
    Sketcher.Constraint("Vertical", 1),
    Sketcher.Constraint("Horizontal", 2),
    Sketcher.Constraint("Vertical", 3),
    Sketcher.Constraint("PointOnObject", 0, 2, -2),
    Sketcher.Constraint("DistanceX", 0, 2, 0, 1, Q("3 mm")),
    Sketcher.Constraint("DistanceY", -1, 1, 0, 2, Q("10.5 mm")),
    Sketcher.Constraint("DistanceY", 1, 2, 1, 1, Q("5.388 mm")),
])
pad5 = body.newObject("PartDesign::Pad", "Pad004")
pad5.Profile = sketch8
pad5.Length = 3

sketch9 = body.newObject("Sketcher::SketchObject", "Sketch008")
sketch9.AttachmentSupport = (doc.getObject("XZ_Plane"), [""])
sketch9.MapMode = "FlatFace"
add_polygon(sketch9, [(3, 3), (-94, 3), (-94, -66), (3, -66)])
add_polygon(sketch9, [(-94, -64), (-94, 2), (2, 2), (2, -64)])
sketch9.addConstraint([
    Sketcher.Constraint("Horizontal", 0),
    Sketcher.Constraint("Vertical", 1),
    Sketcher.Constraint("Horizontal", 2),
    Sketcher.Constraint("Vertical", 3),
    Sketcher.Constraint("Vertical", 4),
    Sketcher.Constraint("Horizontal", 5),
    Sketcher.Constraint("Vertical", 6),
    Sketcher.Constraint("Horizontal", 7),
    Sketcher.Constraint("DistanceX", 5, 1, 5, 2, Q("96 mm")),
    Sketcher.Constraint("DistanceY", 4, 1, 4, 2, Q("66 mm")),
    Sketcher.Constraint("DistanceY", 1, 2, -1, 1, Q("66 mm")),
    Sketcher.Constraint("DistanceY", -1, 1, 4, 2, Q("1.5 mm")),
    Sketcher.Constraint("DistanceY", 4, 2, 0, 2, Q("1.5 mm")),
    Sketcher.Constraint("DistanceX", 0, 2, 4, 2, Q("0.75 mm")),
    Sketcher.Constraint("DistanceX", 5, 2, 3, 2, Q("0.75 mm")),
    Sketcher.Constraint("DistanceX", -1, 1, 2, 2, Q("3 mm")),
])
pocket4 = body.newObject("PartDesign::Pocket", "Pocket003")
pocket4.Profile = sketch9
pocket4.Type = "ThroughAll"

sketch10 = body.newObject("Sketcher::SketchObject", "Sketch009")
sketch10.AttachmentSupport = (doc.getObject("YZ_Plane"), [""])
sketch10.MapMode = "FlatFace"
sketch10.AttachmentOffset = App.Placement(Vector(0, 0, -93.75), App.Rotation())
add_polygon(sketch10, [(5.1, 1.5), (5.1, -64.5), (1.5, -64.5), (1.5, 1.5)])
sketch10.addConstraint([
    Sketcher.Constraint("Vertical", 0),
    Sketcher.Constraint("Horizontal", 1),
    Sketcher.Constraint("Vertical", 2),
    Sketcher.Constraint("Horizontal", 3),
    Sketcher.Constraint("DistanceY", 0, 2, 0, 1, Q("66 mm")),
    Sketcher.Constraint("DistanceY", 0, 2, -1, 1, Q("64.5 mm")),
    Sketcher.Constraint("DistanceX", -1, 1, 1, 2, Q("1.5 mm")),
    Sketcher.Constraint("DistanceX", 1, 2, 1, 1, Q("3.612 mm")),
])
pocket5 = body.newObject("PartDesign::Pocket", "Pocket004")
pocket5.Profile = sketch10
pocket5.Type = "ThroughAll"
pocket5.Reversed = True

sketch11 = body.newObject("Sketcher::SketchObject", "Sketch010")
sketch11.AttachmentSupport = (doc.getObject("XY_Plane"), [""])
sketch11.MapMode = "FlatFace"
sketch11.AttachmentOffset = App.Placement(Vector(0, 0, 1.5), App.Rotation())
add_polygon(sketch11, [(0, 5.1), (2.2, 5.1), (2.2, 10.5), (0, 10.5)])
sketch11.addConstraint([
    Sketcher.Constraint("Horizontal", 0),
    Sketcher.Constraint("Vertical", 1),
    Sketcher.Constraint("Horizontal", 2),
    Sketcher.Constraint("Vertical", 3),
    Sketcher.Constraint("PointOnObject", 2, 2, -2),
    Sketcher.Constraint("DistanceX", 0, 1, 0, 2, Q("2.25 mm")),
    Sketcher.Constraint("DistanceY", -1, 1, 1, 2, Q("10.5 mm")),
    Sketcher.Constraint("DistanceY", 1, 1, 1, 2, Q("5.388 mm")),
])
pocket6 = body.newObject("PartDesign::Pocket", "Pocket005")
pocket6.Profile = sketch11
pocket6.Type = "ThroughAll"

sketch12 = body.newObject("Sketcher::SketchObject", "Sketch011")
sketch12.AttachmentSupport = (doc.getObject("XZ_Plane"), [""])
sketch12.MapMode = "FlatFace"
sketch12.AttachmentOffset = App.Placement(Vector(0, 0, -1.5), App.Rotation())
add_polygon(sketch12, [(2.2, -64.5), (-0.8, -64.5), (-0.8, 1.5), (2.2, 1.5)])
sketch12.addConstraint([
    Sketcher.Constraint("Horizontal", 0),
    Sketcher.Constraint("Vertical", 1),
    Sketcher.Constraint("Horizontal", 2),
    Sketcher.Constraint("Vertical", 3),
    Sketcher.Constraint("DistanceX", 0, 2, 0, 1, Q("3 mm")),
    Sketcher.Constraint("DistanceY", 1, 1, 1, 2, Q("66 mm")),
    Sketcher.Constraint("DistanceY", 0, 2, -1, 1, Q("64.5 mm")),
    Sketcher.Constraint("DistanceX", 0, 2, -1, 1, Q("0.75 mm")),
])
pad6 = body.newObject("PartDesign::Pad", "Pad005")
pad6.Profile = sketch12
pad6.Length = 9
pad6.Reversed = True

sketch13 = body.newObject("Sketcher::SketchObject", "Sketch012")
sketch13.AttachmentSupport = (doc.getObject("XZ_Plane"), [""])
sketch13.MapMode = "FlatFace"
sketch13.AttachmentOffset = App.Placement(Vector(0, 0, -1.5), App.Rotation())
add_polygon(sketch13, [(-93.8, 1.5), (-0.8, 1.5), (-0.8, 0), (-92.2, 0), (-92.2, -63), (-0.8, -63), (-0.8, -64.5), (-93.8, -64.5)])
sketch13.addConstraint([
    Sketcher.Constraint("Horizontal", 0),
    Sketcher.Constraint("Vertical", 1),
    Sketcher.Constraint("Horizontal", 2),
    Sketcher.Constraint("Vertical", 3),
    Sketcher.Constraint("Horizontal", 4),
    Sketcher.Constraint("Vertical", 5),
    Sketcher.Constraint("Horizontal", 6),
    Sketcher.Constraint("Vertical", 7),
    Sketcher.Constraint("PointOnObject", 1, 2, -1),
    Sketcher.Constraint("Vertical", 1, 2, 4, 2),
    Sketcher.Constraint("Equal", 1, 5),
    Sketcher.Constraint("DistanceY", 1, 2, 1, 1, Q("1.5 mm")),
    Sketcher.Constraint("DistanceX", 6, 2, 3, 2, Q("1.5 mm")),
    Sketcher.Constraint("DistanceX", 0, 1, 0, 2, Q("93 mm")),
    Sketcher.Constraint("DistanceY", 3, 2, 3, 1, Q("63 mm")),
    Sketcher.Constraint("DistanceX", 0, 2, -1, 1, Q("0.75 mm")),
])
pad7 = body.newObject("PartDesign::Pad", "Pad006")
pad7.Profile = sketch13
pad7.Length = 3.65
pad7.Reversed = True

sketch14 = body.newObject("Sketcher::SketchObject", "Sketch013")
sketch14.AttachmentSupport = (doc.getObject("XY_Plane"), [""])
sketch14.MapMode = "FlatFace"
add_polygon(sketch14, [(-0.8, 1.5), (-92.2, 1.5), (-92.2, 5.2), (-0.8, 5.2)])
sketch14.addConstraint([
    Sketcher.Constraint("Horizontal", 0),
    Sketcher.Constraint("Vertical", 1),
    Sketcher.Constraint("Horizontal", 2),
    Sketcher.Constraint("Vertical", 3),
    Sketcher.Constraint("DistanceX", 0, 2, 0, 1, Q("91.5 mm")),
    Sketcher.Constraint("DistanceY", 1, 1, 1, 2, Q("3.65 mm")),
    Sketcher.Constraint("DistanceY", -1, 1, 0, 2, Q("1.5 mm")),
    Sketcher.Constraint("DistanceX", 0, 2, -1, 1, Q("92.25 mm")),
])
pocket7 = body.newObject("PartDesign::Pocket", "Pocket006")
pocket7.Profile = sketch14
pocket7.Length = 0.5
pocket7.Reversed = True

sketch15 = body.newObject("Sketcher::SketchObject", "Sketch014")
sketch15.AttachmentSupport = (doc.getObject("XY_Plane"), [""])
sketch15.MapMode = "FlatFace"
sketch15.AttachmentOffset = App.Placement(Vector(0, 0, -63), App.Rotation())
add_polygon(sketch15, [(-92.2, 1.5), (-0.8, 1.5), (-0.8, 5.2), (-92.2, 5.2)])
sketch15.addConstraint([
    Sketcher.Constraint("Horizontal", 0),
    Sketcher.Constraint("Vertical", 1),
    Sketcher.Constraint("Horizontal", 2),
    Sketcher.Constraint("Vertical", 3),
    Sketcher.Constraint("DistanceX", 0, 1, 0, 2, Q("91.5 mm")),
    Sketcher.Constraint("DistanceY", 1, 1, 1, 2, Q("3.65 mm")),
    Sketcher.Constraint("DistanceY", -1, 1, 0, 2, Q("1.5 mm")),
    Sketcher.Constraint("DistanceX", 0, 2, -1, 1, Q("0.75 mm")),
])
pocket8 = body.newObject("PartDesign::Pocket", "Pocket007")
pocket8.Profile = sketch15
pocket8.Length = 0.5

sketch16 = body.newObject("Sketcher::SketchObject", "Sketch015")
sketch16.AttachmentSupport = (doc.getObject("YZ_Plane"), [""])
sketch16.MapMode = "FlatFace"
sketch16.AttachmentOffset = App.Placement(Vector(0, 0, -92.25), App.Rotation())
add_polygon(sketch16, [(1.5, 0.5), (1.5, -63.5), (5.2, -63.5), (5.2, 0.5)])
sketch16.addConstraint([
    Sketcher.Constraint("Vertical", 0),
    Sketcher.Constraint("Horizontal", 1),
    Sketcher.Constraint("Vertical", 2),
    Sketcher.Constraint("Horizontal", 3),
    Sketcher.Constraint("DistanceY", 0, 2, 0, 1, Q("64 mm")),
    Sketcher.Constraint("DistanceX", 1, 1, 1, 2, Q("3.65 mm")),
    Sketcher.Constraint("DistanceX", -1, 1, 0, 2, Q("1.5 mm")),
    Sketcher.Constraint("DistanceY", 0, 2, -1, 1, Q("63.5 mm")),
])
pocket9 = body.newObject("PartDesign::Pocket", "Pocket008")
pocket9.Profile = sketch16
pocket9.Length = 0.5

sketch17 = body.newObject("Sketcher::SketchObject", "Sketch016")
sketch17.AttachmentSupport = (doc.getObject("YZ_Plane"), [""])
sketch17.MapMode = "FlatFace"
sketch17.AttachmentOffset = App.Placement(Vector(0, 0, -0.75), App.Rotation())
add_polygon(sketch17, [(5.2, -64.5), (5.2, -63.5), (1.5, -63.5), (1.5, 0.5), (5.2, 0.5), (5.2, 1.5), (10.5, 1.5), (10.5, -64.5)])
sketch17.addConstraint([
    Sketcher.Constraint("Vertical", 0),
    Sketcher.Constraint("Horizontal", 1),
    Sketcher.Constraint("Vertical", 2),
    Sketcher.Constraint("Horizontal", 3),
    Sketcher.Constraint("Vertical", 4),
    Sketcher.Constraint("Horizontal", 5),
    Sketcher.Constraint("Vertical", 6),
    Sketcher.Constraint("Horizontal", 7),
    Sketcher.Constraint("Vertical", 0, 2, 3, 2),
    Sketcher.Constraint("Equal", 0, 4),
    Sketcher.Constraint("DistanceY", 0, 1, 0, 2, Q("1 mm")),
    Sketcher.Constraint("DistanceY", 2, 1, 2, 2, Q("64 mm")),
    Sketcher.Constraint("DistanceX", 2, 2, 5, 2, Q("9 mm")),
    Sketcher.Constraint("DistanceX", 1, 2, 1, 1, Q("3.65 mm")),
    Sketcher.Constraint("DistanceY", 0, 2, -1, 1, Q("63.5 mm")),
    Sketcher.Constraint("DistanceX", -1, 1, 1, 2, Q("1.5 mm")),
])
pocket10 = body.newObject("PartDesign::Pocket", "Pocket009")
pocket10.Profile = sketch17
pocket10.Length = 0.5
pocket10.Reversed = True

doc.recompute()
